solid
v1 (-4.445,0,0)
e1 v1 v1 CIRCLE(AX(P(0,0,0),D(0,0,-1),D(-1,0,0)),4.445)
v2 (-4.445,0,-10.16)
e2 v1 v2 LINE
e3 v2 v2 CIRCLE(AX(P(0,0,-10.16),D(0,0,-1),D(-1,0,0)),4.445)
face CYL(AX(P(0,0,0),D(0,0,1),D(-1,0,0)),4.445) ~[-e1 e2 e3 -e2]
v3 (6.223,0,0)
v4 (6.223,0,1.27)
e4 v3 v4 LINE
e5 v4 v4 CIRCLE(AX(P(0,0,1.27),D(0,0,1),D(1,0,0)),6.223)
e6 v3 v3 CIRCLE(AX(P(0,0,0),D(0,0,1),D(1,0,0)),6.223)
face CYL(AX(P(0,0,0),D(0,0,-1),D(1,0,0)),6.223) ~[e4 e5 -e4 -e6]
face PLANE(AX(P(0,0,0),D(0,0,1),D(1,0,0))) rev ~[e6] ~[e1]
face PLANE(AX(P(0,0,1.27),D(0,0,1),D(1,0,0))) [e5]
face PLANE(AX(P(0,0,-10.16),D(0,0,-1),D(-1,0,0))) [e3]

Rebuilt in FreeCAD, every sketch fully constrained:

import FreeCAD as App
import Part
import Sketcher
Q = App.Units.Quantity

doc = App.newDocument("Part")
body = doc.addObject("PartDesign::Body", "Body")

sketch1 = body.newObject("Sketcher::SketchObject", "Sketch")
sketch1.AttachmentSupport = (doc.getObject("XY_Plane"), [""])
sketch1.MapMode = "FlatFace"
sketch1.addGeometry(Part.Circle(App.Vector(0, 0, 0), App.Vector(0, 0, 1), 6.223), False)
sketch1.addConstraint([
    Sketcher.Constraint("Coincident", 0, 3, -1, 1),
    Sketcher.Constraint("Diameter", 0, Q("0.49 in")),
])
pad1 = body.newObject("PartDesign::Pad", "Pad")
pad1.Profile = sketch1
pad1.Length = Q("0.05 in")

sketch2 = body.newObject("Sketcher::SketchObject", "Sketch001")
sketch2.AttachmentSupport = (doc.getObject("XY_Plane"), [""])
sketch2.MapMode = "FlatFace"
sketch2.addGeometry(Part.Circle(App.Vector(0, 0, 0), App.Vector(0, 0, 1), 4.445), False)
sketch2.addConstraint([
    Sketcher.Constraint("Coincident", 0, 3, -1, 1),
    Sketcher.Constraint("Diameter", 0, Q("0.35 in")),
])
pad2 = body.newObject("PartDesign::Pad", "Pad001")
pad2.Profile = sketch2
pad2.Length = Q("0.4 in")
pad2.Reversed = True

doc.recompute()
